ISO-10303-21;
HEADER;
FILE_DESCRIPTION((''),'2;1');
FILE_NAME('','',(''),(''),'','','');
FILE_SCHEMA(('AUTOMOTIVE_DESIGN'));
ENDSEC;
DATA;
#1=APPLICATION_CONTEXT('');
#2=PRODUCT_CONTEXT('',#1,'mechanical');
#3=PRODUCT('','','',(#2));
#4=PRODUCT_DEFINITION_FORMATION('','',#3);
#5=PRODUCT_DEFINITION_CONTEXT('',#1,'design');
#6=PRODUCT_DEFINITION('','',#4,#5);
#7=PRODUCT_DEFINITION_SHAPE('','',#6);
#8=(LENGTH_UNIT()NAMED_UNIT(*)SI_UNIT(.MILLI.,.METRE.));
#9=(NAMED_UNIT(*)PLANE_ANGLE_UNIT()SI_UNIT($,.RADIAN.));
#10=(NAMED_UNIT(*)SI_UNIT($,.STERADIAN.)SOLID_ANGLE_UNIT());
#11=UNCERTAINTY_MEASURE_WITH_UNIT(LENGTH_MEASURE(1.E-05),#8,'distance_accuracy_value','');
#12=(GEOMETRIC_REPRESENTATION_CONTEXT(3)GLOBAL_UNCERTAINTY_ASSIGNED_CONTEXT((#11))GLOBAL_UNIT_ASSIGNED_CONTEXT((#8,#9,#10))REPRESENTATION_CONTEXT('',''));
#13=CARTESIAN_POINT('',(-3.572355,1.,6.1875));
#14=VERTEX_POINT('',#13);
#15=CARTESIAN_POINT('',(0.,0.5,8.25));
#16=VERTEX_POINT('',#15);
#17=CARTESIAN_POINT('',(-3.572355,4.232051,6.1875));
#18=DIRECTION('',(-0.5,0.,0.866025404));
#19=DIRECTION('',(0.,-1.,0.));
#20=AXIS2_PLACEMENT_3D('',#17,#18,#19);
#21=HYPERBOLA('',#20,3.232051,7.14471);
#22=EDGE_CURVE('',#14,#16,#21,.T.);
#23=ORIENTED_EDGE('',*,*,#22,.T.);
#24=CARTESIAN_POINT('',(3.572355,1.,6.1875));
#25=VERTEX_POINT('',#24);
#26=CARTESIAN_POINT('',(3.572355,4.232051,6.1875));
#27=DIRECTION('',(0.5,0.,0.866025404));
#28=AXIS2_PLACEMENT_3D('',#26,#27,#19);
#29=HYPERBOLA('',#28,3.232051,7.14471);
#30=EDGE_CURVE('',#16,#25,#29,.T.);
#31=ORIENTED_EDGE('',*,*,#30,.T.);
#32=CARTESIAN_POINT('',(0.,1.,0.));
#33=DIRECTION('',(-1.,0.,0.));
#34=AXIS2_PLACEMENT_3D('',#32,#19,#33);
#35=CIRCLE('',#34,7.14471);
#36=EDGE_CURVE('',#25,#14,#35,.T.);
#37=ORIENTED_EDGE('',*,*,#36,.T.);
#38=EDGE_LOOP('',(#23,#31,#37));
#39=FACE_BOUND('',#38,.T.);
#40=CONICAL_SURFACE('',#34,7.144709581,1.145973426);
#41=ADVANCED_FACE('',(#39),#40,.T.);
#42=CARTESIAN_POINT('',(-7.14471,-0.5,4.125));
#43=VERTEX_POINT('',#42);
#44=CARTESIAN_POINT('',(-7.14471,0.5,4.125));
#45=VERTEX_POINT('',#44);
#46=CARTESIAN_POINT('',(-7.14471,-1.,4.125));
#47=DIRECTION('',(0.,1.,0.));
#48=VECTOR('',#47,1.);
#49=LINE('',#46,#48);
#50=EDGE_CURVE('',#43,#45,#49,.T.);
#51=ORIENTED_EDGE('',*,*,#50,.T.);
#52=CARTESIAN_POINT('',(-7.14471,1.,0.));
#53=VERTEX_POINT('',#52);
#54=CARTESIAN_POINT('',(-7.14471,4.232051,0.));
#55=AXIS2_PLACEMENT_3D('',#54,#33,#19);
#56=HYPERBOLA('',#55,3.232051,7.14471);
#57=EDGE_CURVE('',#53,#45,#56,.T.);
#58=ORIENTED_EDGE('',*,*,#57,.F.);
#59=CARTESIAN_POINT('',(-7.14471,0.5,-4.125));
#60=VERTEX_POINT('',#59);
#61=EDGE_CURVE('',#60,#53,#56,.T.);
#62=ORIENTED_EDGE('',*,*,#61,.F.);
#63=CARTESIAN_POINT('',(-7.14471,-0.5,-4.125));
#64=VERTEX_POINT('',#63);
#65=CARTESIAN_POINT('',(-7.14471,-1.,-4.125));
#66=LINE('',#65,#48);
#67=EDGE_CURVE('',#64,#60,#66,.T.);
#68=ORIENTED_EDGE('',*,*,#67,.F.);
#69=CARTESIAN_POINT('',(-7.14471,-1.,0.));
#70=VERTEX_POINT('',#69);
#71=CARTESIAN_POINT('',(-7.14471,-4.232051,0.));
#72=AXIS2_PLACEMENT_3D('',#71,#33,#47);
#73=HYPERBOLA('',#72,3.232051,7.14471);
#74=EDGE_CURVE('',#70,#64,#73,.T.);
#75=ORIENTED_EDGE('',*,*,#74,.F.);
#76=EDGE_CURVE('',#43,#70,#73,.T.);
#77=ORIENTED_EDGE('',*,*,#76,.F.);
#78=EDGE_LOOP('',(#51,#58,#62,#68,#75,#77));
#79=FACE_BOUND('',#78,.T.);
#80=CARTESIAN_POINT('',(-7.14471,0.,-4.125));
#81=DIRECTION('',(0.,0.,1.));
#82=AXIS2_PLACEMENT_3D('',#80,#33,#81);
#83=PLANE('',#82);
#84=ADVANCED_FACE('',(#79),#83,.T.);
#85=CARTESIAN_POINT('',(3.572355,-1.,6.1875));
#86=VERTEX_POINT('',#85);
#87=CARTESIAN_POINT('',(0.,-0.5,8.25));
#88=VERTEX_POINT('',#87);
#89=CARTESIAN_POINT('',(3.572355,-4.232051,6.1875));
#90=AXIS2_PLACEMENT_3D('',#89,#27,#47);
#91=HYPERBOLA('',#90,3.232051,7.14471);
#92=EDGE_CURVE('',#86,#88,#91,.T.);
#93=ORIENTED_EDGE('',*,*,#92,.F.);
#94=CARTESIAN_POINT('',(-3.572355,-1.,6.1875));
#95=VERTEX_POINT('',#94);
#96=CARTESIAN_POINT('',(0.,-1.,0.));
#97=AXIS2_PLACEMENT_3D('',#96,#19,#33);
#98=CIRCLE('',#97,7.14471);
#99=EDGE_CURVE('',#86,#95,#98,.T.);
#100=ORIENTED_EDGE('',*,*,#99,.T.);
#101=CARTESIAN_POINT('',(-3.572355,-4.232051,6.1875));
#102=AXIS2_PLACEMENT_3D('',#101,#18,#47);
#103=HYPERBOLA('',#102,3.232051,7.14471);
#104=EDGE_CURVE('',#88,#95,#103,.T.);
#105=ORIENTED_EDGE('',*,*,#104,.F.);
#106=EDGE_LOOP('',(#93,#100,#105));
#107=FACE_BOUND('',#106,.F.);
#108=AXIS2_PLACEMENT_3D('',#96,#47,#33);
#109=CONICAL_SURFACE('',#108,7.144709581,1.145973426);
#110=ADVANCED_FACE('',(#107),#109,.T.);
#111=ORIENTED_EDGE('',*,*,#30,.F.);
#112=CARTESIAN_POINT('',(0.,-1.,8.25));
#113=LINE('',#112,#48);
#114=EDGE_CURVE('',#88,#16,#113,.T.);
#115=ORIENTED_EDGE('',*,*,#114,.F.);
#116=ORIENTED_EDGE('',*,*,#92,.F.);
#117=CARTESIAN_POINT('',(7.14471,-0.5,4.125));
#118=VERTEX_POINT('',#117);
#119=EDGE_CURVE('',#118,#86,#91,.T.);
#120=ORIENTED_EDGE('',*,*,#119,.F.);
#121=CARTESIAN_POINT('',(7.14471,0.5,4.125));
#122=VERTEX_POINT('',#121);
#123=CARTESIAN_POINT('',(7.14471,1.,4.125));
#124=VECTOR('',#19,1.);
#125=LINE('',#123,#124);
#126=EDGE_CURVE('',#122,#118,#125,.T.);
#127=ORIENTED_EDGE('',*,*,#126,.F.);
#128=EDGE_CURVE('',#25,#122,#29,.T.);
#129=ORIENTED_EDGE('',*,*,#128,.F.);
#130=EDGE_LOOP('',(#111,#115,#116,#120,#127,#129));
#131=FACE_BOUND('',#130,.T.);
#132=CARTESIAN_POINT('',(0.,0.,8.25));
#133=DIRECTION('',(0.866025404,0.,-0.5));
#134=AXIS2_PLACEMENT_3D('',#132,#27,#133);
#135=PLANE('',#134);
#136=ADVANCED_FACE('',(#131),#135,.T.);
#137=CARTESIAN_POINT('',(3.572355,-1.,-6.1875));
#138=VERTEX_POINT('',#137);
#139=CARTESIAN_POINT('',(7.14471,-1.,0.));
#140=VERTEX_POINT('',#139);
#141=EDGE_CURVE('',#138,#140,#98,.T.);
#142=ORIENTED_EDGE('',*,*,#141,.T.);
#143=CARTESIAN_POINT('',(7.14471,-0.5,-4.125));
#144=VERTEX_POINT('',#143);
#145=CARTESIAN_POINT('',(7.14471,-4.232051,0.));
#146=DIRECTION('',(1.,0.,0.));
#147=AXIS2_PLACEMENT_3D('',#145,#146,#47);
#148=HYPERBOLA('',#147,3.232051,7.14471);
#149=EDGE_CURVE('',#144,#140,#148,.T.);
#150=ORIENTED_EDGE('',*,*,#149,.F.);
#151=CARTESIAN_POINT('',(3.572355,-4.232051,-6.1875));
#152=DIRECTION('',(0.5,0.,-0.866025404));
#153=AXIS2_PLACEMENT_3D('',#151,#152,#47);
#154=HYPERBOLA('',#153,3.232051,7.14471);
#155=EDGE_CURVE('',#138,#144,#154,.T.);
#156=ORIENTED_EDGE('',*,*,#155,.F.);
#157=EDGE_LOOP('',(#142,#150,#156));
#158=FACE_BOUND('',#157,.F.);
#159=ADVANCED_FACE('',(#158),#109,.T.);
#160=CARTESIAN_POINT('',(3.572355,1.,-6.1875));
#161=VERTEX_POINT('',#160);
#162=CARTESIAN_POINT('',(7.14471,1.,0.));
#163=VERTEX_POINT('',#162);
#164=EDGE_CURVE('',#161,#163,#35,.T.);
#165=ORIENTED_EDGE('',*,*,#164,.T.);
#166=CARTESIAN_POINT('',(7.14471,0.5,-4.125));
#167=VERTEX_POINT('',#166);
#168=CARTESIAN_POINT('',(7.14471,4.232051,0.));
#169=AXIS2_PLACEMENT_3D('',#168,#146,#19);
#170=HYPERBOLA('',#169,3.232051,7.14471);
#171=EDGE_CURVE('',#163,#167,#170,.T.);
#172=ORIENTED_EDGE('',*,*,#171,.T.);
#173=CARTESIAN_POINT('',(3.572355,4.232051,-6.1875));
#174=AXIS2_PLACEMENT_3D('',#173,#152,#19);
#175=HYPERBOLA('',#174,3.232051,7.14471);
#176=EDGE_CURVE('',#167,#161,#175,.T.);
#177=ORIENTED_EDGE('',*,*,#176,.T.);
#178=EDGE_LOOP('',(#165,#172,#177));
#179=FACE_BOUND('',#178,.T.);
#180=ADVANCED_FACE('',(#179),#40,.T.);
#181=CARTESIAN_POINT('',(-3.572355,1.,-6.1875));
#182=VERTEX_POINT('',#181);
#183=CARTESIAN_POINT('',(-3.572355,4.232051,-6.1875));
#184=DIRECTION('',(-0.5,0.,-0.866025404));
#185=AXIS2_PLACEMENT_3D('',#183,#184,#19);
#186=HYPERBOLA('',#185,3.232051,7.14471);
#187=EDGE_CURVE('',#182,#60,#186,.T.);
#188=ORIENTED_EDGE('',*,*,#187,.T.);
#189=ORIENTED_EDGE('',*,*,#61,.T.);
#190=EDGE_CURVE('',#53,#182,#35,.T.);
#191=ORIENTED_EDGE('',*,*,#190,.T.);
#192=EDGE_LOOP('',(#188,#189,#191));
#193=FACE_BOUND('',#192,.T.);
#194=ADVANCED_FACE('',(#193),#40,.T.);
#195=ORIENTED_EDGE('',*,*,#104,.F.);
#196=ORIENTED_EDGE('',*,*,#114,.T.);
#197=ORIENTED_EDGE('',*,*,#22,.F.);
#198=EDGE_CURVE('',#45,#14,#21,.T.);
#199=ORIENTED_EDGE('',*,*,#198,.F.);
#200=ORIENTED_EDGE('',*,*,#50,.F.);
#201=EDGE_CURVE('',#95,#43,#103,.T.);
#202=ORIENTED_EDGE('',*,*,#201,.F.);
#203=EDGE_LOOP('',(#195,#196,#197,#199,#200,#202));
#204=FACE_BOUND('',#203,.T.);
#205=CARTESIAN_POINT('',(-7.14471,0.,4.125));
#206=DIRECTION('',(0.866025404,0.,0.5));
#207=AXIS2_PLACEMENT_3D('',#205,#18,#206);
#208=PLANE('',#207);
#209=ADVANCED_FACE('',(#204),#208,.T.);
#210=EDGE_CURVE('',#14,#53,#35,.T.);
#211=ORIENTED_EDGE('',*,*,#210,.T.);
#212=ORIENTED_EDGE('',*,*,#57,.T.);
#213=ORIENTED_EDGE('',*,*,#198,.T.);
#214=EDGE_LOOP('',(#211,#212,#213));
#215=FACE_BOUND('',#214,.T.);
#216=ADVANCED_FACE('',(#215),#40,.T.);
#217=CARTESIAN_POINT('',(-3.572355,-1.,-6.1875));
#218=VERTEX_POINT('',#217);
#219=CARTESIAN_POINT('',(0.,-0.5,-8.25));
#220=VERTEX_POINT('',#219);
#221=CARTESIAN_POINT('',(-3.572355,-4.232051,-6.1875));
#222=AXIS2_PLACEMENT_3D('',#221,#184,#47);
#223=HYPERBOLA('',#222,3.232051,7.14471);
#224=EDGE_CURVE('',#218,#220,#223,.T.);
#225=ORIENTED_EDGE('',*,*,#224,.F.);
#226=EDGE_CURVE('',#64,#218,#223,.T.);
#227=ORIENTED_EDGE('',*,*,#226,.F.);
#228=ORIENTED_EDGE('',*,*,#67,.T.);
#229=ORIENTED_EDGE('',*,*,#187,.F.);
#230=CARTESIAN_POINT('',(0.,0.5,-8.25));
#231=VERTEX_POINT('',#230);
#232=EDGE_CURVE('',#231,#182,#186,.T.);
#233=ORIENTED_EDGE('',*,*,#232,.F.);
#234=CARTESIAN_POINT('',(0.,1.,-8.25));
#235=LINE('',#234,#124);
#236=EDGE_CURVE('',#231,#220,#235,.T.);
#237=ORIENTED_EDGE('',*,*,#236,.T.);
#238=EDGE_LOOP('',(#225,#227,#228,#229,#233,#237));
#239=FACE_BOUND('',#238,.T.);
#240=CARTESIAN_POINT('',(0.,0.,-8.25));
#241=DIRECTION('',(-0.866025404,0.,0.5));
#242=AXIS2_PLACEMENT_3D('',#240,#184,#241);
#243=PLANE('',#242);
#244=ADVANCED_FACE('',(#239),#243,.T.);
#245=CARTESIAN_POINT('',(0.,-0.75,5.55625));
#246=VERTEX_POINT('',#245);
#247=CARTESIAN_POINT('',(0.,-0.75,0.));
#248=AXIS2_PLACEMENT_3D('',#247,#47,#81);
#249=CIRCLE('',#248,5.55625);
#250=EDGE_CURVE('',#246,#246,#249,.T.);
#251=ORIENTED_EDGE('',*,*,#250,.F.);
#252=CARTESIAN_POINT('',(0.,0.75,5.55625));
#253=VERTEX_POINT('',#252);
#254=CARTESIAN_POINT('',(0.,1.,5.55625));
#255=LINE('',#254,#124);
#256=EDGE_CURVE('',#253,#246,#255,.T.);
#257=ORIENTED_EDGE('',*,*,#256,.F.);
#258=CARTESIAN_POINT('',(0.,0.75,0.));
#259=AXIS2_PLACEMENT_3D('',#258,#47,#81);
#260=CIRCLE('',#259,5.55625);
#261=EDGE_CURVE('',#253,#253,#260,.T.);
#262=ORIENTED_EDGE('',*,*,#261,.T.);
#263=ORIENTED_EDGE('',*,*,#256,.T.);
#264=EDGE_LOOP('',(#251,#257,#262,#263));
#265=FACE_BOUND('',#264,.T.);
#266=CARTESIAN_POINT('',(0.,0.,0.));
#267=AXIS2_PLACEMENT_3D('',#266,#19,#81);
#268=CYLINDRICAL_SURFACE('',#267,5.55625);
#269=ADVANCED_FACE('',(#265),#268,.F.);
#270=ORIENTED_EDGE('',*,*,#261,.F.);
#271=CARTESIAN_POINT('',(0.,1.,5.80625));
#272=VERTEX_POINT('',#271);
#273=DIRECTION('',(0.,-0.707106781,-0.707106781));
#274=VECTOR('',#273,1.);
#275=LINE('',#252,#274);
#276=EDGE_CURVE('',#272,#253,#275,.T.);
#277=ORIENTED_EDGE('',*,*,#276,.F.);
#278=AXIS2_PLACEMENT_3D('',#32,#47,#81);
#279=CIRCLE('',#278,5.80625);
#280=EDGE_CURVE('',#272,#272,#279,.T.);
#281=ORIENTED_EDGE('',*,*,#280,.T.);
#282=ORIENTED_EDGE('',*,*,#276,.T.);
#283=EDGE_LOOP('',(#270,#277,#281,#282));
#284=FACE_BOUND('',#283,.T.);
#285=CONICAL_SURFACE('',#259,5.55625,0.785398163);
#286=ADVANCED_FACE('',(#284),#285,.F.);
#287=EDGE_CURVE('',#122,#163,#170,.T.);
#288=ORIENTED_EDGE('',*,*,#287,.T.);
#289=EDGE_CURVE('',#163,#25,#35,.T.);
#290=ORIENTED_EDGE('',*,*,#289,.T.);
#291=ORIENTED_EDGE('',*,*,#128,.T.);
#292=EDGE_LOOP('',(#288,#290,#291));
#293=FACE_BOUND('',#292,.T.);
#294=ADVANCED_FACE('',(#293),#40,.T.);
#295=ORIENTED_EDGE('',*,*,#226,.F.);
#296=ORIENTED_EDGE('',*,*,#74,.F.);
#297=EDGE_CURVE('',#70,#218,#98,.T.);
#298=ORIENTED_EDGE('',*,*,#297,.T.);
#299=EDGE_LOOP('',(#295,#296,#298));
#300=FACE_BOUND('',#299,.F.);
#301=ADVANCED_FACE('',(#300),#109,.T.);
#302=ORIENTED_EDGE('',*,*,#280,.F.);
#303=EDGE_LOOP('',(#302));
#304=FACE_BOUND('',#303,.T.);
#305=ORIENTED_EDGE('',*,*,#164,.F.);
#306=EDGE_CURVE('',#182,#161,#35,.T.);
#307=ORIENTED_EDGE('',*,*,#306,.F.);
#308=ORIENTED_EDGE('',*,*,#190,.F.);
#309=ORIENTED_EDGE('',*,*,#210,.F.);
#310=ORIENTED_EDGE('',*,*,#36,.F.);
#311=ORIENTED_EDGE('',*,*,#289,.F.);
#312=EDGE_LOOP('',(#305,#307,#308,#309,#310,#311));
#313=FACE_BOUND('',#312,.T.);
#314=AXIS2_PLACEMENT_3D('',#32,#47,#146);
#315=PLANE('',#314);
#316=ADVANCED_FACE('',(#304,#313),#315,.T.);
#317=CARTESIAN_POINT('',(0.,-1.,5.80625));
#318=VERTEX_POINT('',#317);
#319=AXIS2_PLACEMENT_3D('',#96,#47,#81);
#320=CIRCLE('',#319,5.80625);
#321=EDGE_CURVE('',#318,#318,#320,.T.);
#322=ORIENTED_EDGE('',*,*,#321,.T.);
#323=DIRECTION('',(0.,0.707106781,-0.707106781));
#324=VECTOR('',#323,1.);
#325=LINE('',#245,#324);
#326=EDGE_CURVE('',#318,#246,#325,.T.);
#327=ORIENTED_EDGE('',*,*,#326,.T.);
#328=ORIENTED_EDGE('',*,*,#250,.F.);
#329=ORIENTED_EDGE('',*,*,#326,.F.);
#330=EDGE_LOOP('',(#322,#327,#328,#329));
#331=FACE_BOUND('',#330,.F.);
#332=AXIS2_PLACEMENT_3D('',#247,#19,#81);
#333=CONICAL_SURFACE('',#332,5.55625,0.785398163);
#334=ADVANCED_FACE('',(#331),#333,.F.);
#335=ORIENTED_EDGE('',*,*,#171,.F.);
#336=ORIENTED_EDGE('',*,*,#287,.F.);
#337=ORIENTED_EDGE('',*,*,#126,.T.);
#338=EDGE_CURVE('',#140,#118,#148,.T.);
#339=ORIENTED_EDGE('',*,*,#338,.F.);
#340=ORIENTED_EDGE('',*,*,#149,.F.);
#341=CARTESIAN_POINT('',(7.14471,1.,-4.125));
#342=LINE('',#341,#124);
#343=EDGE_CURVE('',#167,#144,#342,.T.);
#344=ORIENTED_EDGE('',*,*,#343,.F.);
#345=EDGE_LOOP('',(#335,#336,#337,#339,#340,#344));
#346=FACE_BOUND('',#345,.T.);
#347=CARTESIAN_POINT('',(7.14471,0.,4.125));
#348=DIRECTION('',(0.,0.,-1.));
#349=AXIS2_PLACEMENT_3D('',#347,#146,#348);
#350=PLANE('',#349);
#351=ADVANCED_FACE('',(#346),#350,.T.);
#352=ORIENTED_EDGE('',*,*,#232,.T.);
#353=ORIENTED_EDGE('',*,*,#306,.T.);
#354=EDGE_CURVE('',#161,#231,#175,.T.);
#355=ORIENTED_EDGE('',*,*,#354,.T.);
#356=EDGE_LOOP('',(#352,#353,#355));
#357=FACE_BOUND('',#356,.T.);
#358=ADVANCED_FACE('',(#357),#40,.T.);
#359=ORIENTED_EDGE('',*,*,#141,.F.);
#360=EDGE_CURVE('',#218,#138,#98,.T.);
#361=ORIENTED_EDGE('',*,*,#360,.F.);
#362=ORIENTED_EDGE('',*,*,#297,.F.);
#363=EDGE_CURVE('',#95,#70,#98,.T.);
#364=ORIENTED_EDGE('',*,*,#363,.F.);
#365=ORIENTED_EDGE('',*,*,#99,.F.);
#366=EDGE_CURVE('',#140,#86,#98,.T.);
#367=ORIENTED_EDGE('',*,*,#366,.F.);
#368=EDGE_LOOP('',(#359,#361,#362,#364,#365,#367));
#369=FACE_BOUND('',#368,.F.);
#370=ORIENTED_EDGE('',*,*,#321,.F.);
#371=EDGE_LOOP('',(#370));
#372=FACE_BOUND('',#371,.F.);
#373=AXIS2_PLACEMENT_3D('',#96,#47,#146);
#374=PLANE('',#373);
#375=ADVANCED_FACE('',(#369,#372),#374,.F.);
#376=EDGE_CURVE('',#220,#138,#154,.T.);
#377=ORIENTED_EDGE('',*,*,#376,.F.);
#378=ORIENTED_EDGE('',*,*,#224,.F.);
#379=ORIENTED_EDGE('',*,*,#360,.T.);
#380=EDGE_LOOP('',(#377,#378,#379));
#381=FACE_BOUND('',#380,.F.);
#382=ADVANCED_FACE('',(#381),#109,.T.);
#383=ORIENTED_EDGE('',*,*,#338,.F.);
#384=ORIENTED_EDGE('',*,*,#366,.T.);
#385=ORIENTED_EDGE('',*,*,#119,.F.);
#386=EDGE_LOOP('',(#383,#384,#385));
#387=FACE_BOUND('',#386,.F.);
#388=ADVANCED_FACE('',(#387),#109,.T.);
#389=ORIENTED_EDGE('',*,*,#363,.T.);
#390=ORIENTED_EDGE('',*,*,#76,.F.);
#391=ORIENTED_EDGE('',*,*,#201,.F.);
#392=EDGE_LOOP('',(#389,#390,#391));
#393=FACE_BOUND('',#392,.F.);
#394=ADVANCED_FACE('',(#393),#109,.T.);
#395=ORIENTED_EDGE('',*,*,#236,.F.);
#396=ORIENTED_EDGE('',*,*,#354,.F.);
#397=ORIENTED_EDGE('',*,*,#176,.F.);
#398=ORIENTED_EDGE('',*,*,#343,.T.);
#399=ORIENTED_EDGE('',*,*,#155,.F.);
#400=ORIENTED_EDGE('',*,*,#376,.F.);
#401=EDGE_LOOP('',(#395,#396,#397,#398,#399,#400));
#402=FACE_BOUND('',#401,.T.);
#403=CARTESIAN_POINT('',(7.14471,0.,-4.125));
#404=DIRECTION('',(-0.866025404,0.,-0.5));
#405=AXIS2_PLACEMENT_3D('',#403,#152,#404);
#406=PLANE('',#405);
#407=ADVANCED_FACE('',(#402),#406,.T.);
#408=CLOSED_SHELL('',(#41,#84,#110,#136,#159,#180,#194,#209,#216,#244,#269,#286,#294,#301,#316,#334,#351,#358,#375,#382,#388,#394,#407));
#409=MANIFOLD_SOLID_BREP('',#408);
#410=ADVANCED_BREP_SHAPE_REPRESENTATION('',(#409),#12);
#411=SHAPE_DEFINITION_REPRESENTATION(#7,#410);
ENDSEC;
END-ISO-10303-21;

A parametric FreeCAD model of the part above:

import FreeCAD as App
import Part
import Sketcher
Q = App.Units.Quantity


def edges_at(feature, points):
    """Names of the edges that pass closest to the given points."""
    edges = feature.Shape.Edges
    near = lambda p: min(range(len(edges)), key=lambda i: edges[i].distToShape(Part.Vertex(*p))[0])
    return sorted({f"Edge{near(p) + 1}" for p in points})


def add_polygon(sketch, points):
    """Adds a closed chain of lines whose ends are joined by coincident constraints."""
    first, n = sketch.GeometryCount, len(points)
    for a, b in zip(points, points[1:] + points[:1]):
        sketch.addGeometry(Part.LineSegment(App.Vector(*a, 0), App.Vector(*b, 0)), False)
    for i in range(n):
        sketch.addConstraint(Sketcher.Constraint("Coincident", first + i, 2, first + (i + 1) % n, 1))

doc = App.newDocument("Part")
body = doc.addObject("PartDesign::Body", "Body")

sketch1 = body.newObject("Sketcher::SketchObject", "Sketch")
sketch1.AttachmentSupport = (doc.getObject("XZ_Plane"), [""])
sketch1.MapMode = "FlatFace"
add_polygon(sketch1, [(0, -8), (-7, -4), (-7, 4), (0, 8), (7, 4), (7, -4)])
sketch1.addGeometry(Part.Circle(App.Vector(0, 0, 0), App.Vector(0, 0, 1), 6), False)
sketch1.addConstraint([
    Sketcher.Constraint("Vertical", 1),
    Sketcher.Constraint("Vertical", 4),
    Sketcher.Constraint("Coincident", 6, 3, -1, 1),
    Sketcher.Constraint("Symmetric", 0, 2, 3, 2, -1, 1),
    Sketcher.Constraint("Symmetric", 2, 2, 5, 2, -1, 1),
    Sketcher.Constraint("PointOnObject", 2, 2, -2),
    Sketcher.Constraint("Parallel", 2, 5),
    Sketcher.Constraint("Horizontal", 1, 2, 3, 2),
    Sketcher.Constraint("Angle", 0, Q("150 deg")),
    Sketcher.Constraint("Diameter", 6, Q("11.1125 mm")),
    Sketcher.Constraint("DistanceY", 1, 1, 1, 2, Q("8.25 mm")),
    Sketcher.Constraint("Distance", 0, Q("8.25 mm")),
])
pad1 = body.newObject("PartDesign::Pad", "Pad")
pad1.Profile = sketch1
pad1.Length = 2
pad1.Midplane = True

sketch2 = body.newObject("Sketcher::SketchObject", "Sketch001")
sketch2.AttachmentSupport = (doc.getObject("XY_Plane"), [""])
sketch2.MapMode = "FlatFace"
add_polygon(sketch2, [(-8.25, 0.5), (-7.14, 1), (-7.14, 2), (-8.64, 2), (-8.64, 0.5)])
add_polygon(sketch2, [(-7.14, -2), (-7.14, -1), (-8.25, -0.5), (-8.64, -0.5), (-8.64, -2)])
sketch2.addConstraint([
    Sketcher.Constraint("Vertical", 1),
    Sketcher.Constraint("Horizontal", 2),
    Sketcher.Constraint("Vertical", 3),
    Sketcher.Constraint("Horizontal", 4),
    Sketcher.Constraint("Vertical", 5),
    Sketcher.Constraint("Horizontal", 7),
    Sketcher.Constraint("Vertical", 8),
    Sketcher.Constraint("Horizontal", 9),
    Sketcher.Constraint("Symmetric", 0, 2, 5, 2, -1),
    Sketcher.Constraint("Symmetric", 4, 2, 6, 2, -1),
    Sketcher.Constraint("Symmetric", 2, 2, 8, 2, -1),
    Sketcher.Constraint("Equal", 9, 3),
    Sketcher.Constraint("DistanceY", 1, 1, 1, 2, Q("1 mm")),
    Sketcher.Constraint("DistanceX", 2, 2, 2, 1, Q("1.5 mm")),
    Sketcher.Constraint("DistanceY", -1, 1, 0, 2, Q("1 mm")),
    Sketcher.Constraint("DistanceX", 4, 2, -1, 1, Q("8.25 mm")),
    Sketcher.Constraint("DistanceX", 4, 1, 4, 2, Q("0.39471 mm")),
])
groove = body.newObject("PartDesign::Groove", "Groove")
groove.Profile = sketch2
groove.ReferenceAxis = (sketch2, ["V_Axis"])
groove.Angle = 360
doc.recompute()

chamfer = body.newObject("PartDesign::Chamfer", "Chamfer")
chamfer.Base = (groove, edges_at(groove, [(0, -1, -5.556), (0, 1, -5.556)]))
chamfer.Size = 0.25

doc.recompute()
